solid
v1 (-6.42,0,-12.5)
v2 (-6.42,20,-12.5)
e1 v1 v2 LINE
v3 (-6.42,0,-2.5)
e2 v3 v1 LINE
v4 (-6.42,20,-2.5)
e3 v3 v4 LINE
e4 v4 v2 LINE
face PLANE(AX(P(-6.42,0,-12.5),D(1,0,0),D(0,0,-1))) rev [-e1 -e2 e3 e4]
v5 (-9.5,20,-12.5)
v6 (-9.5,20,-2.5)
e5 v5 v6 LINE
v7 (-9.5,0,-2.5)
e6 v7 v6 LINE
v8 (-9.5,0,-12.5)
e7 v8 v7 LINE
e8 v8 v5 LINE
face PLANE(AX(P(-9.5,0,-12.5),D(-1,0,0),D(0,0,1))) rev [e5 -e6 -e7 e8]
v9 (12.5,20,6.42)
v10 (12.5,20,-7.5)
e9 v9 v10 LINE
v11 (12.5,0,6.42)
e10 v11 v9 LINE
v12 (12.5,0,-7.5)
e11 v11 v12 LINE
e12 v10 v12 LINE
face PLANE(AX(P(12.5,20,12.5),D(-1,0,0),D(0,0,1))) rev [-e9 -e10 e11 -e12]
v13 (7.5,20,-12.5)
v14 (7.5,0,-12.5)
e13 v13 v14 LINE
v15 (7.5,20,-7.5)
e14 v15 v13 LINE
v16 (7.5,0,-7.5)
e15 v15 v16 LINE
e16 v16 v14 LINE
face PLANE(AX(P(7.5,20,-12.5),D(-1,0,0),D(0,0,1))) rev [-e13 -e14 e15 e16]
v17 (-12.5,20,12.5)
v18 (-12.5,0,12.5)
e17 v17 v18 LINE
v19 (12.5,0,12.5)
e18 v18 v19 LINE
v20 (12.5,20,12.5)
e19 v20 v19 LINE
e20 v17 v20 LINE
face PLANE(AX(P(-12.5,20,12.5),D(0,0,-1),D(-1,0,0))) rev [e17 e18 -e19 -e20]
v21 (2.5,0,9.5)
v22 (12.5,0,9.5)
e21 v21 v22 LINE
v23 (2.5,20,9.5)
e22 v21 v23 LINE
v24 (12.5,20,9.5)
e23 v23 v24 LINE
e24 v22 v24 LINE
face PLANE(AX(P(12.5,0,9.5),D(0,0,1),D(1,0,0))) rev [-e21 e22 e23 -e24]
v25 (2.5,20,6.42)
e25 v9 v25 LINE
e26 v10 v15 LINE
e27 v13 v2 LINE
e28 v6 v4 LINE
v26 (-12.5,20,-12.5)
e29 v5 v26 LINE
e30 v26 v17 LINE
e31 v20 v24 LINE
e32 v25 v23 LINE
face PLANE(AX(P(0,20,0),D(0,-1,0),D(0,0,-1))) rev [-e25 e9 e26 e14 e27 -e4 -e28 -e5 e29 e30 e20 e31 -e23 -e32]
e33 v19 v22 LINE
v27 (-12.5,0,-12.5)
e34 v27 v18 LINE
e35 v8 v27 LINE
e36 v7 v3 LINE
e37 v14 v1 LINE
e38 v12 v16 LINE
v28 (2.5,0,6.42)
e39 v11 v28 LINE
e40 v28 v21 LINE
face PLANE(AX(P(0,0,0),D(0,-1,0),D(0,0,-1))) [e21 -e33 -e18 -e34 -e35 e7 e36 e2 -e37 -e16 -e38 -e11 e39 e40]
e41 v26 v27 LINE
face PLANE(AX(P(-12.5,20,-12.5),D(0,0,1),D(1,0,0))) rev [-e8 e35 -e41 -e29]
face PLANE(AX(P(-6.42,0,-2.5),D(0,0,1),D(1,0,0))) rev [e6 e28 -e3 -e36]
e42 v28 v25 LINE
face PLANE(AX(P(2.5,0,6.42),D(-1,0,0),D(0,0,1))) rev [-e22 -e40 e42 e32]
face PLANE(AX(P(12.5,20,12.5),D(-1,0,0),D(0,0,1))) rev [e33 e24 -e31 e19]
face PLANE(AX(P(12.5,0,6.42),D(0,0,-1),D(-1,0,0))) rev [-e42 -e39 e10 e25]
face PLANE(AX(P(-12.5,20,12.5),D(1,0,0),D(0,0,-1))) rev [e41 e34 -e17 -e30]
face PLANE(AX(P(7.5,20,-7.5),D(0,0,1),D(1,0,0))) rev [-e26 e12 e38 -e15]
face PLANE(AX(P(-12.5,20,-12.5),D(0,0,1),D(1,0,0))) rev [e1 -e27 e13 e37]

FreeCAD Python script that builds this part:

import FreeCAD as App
import Part
import Sketcher
from FreeCAD import Vector
Q = App.Units.Quantity


def add_polygon(sketch, points):
    """Adds a closed chain of lines whose ends are joined by coincident constraints."""
    first, n = sketch.GeometryCount, len(points)
    for a, b in zip(points, points[1:] + points[:1]):
        sketch.addGeometry(Part.LineSegment(App.Vector(*a, 0), App.Vector(*b, 0)), False)
    for i in range(n):
        sketch.addConstraint(Sketcher.Constraint("Coincident", first + i, 2, first + (i + 1) % n, 1))

doc = App.newDocument("Part")
body = doc.addObject("PartDesign::Body", "Body")

# Sketch on XZ plane
sketch1 = body.newObject("Sketcher::SketchObject", "Sketch")
sketch1.AttachmentSupport = (doc.getObject("XZ_Plane"), [""])
sketch1.MapMode = "FlatFace"
add_polygon(sketch1, [(7.5, -7.5), (7.5, -12.5), (-12.5, -12.5), (-12.5, 12.5), (12.5, 12.5), (12.5, -7.5)])  # lines 0-5
sketch1.addConstraint([
    Sketcher.Constraint("Vertical", 0),
    Sketcher.Constraint("Horizontal", 1),
    Sketcher.Constraint("Vertical", 2),
    Sketcher.Constraint("Horizontal", 3),
    Sketcher.Constraint("Vertical", 4),
    Sketcher.Constraint("Horizontal", 5),
    Sketcher.Constraint("Symmetric", 1, 2, 3, 2, -1, 1),
    Sketcher.Constraint("Equal", 5, 0),
    Sketcher.Constraint("Equal", 3, 2),
    Sketcher.Constraint("DistanceX", 1, 2, 1, 1, Q("20 mm")),
    Sketcher.Constraint("DistanceX", 3, 1, 3, 2, Q("25 mm")),
])
pad1 = body.newObject("PartDesign::Pad", "Pad")
pad1.Profile = sketch1
pad1.Length = 20
pad1.Reversed = True

# Sketch on XZ plane
sketch2 = body.newObject("Sketcher::SketchObject", "Sketch001")
sketch2.AttachmentSupport = (doc.getObject("XZ_Plane"), [""])
sketch2.MapMode = "FlatFace"
sketch2.AttachmentOffset = App.Placement(Vector(0, 0, -20), App.Rotation())
add_polygon(sketch2, [(2.5, 6.42), (2.5, 9.5), (12.5, 9.5), (12.5, 6.42)])  # lines 0-3
add_polygon(sketch2, [(-9.5, -12.5), (-9.5, -2.5), (-6.42, -2.5), (-6.42, -12.5)])  # lines 4-7
sketch2.addConstraint([
    Sketcher.Constraint("Vertical", 0),
    Sketcher.Constraint("Horizontal", 1),
    Sketcher.Constraint("Vertical", 2),
    Sketcher.Constraint("Horizontal", 3),
    Sketcher.Constraint("Vertical", 4),
    Sketcher.Constraint("Horizontal", 5),
    Sketcher.Constraint("Vertical", 6),
    Sketcher.Constraint("Horizontal", 7),
    Sketcher.Constraint("Equal", 7, 0),
    Sketcher.Constraint("Equal", 3, 4),
    Sketcher.Constraint("DistanceX", 1, 1, 1, 2, Q("10 mm")),
    Sketcher.Constraint("DistanceX", 4, 2, 3, 2, Q("12 mm")),
    Sketcher.Constraint("DistanceY", 4, 2, 0, 2, Q("12 mm")),
    Sketcher.Constraint("DistanceX", 5, 1, 5, 2, Q("3.08 mm")),
    Sketcher.Constraint("DistanceX", -1, 1, 0, 2, Q("2.5 mm")),
    Sketcher.Constraint("DistanceY", -1, 1, 0, 2, Q("9.5 mm")),
])
pocket1 = body.newObject("PartDesign::Pocket", "Pocket")
pocket1.Profile = sketch2
pocket1.Length = 20
pocket1.Reversed = True

doc.recompute()
